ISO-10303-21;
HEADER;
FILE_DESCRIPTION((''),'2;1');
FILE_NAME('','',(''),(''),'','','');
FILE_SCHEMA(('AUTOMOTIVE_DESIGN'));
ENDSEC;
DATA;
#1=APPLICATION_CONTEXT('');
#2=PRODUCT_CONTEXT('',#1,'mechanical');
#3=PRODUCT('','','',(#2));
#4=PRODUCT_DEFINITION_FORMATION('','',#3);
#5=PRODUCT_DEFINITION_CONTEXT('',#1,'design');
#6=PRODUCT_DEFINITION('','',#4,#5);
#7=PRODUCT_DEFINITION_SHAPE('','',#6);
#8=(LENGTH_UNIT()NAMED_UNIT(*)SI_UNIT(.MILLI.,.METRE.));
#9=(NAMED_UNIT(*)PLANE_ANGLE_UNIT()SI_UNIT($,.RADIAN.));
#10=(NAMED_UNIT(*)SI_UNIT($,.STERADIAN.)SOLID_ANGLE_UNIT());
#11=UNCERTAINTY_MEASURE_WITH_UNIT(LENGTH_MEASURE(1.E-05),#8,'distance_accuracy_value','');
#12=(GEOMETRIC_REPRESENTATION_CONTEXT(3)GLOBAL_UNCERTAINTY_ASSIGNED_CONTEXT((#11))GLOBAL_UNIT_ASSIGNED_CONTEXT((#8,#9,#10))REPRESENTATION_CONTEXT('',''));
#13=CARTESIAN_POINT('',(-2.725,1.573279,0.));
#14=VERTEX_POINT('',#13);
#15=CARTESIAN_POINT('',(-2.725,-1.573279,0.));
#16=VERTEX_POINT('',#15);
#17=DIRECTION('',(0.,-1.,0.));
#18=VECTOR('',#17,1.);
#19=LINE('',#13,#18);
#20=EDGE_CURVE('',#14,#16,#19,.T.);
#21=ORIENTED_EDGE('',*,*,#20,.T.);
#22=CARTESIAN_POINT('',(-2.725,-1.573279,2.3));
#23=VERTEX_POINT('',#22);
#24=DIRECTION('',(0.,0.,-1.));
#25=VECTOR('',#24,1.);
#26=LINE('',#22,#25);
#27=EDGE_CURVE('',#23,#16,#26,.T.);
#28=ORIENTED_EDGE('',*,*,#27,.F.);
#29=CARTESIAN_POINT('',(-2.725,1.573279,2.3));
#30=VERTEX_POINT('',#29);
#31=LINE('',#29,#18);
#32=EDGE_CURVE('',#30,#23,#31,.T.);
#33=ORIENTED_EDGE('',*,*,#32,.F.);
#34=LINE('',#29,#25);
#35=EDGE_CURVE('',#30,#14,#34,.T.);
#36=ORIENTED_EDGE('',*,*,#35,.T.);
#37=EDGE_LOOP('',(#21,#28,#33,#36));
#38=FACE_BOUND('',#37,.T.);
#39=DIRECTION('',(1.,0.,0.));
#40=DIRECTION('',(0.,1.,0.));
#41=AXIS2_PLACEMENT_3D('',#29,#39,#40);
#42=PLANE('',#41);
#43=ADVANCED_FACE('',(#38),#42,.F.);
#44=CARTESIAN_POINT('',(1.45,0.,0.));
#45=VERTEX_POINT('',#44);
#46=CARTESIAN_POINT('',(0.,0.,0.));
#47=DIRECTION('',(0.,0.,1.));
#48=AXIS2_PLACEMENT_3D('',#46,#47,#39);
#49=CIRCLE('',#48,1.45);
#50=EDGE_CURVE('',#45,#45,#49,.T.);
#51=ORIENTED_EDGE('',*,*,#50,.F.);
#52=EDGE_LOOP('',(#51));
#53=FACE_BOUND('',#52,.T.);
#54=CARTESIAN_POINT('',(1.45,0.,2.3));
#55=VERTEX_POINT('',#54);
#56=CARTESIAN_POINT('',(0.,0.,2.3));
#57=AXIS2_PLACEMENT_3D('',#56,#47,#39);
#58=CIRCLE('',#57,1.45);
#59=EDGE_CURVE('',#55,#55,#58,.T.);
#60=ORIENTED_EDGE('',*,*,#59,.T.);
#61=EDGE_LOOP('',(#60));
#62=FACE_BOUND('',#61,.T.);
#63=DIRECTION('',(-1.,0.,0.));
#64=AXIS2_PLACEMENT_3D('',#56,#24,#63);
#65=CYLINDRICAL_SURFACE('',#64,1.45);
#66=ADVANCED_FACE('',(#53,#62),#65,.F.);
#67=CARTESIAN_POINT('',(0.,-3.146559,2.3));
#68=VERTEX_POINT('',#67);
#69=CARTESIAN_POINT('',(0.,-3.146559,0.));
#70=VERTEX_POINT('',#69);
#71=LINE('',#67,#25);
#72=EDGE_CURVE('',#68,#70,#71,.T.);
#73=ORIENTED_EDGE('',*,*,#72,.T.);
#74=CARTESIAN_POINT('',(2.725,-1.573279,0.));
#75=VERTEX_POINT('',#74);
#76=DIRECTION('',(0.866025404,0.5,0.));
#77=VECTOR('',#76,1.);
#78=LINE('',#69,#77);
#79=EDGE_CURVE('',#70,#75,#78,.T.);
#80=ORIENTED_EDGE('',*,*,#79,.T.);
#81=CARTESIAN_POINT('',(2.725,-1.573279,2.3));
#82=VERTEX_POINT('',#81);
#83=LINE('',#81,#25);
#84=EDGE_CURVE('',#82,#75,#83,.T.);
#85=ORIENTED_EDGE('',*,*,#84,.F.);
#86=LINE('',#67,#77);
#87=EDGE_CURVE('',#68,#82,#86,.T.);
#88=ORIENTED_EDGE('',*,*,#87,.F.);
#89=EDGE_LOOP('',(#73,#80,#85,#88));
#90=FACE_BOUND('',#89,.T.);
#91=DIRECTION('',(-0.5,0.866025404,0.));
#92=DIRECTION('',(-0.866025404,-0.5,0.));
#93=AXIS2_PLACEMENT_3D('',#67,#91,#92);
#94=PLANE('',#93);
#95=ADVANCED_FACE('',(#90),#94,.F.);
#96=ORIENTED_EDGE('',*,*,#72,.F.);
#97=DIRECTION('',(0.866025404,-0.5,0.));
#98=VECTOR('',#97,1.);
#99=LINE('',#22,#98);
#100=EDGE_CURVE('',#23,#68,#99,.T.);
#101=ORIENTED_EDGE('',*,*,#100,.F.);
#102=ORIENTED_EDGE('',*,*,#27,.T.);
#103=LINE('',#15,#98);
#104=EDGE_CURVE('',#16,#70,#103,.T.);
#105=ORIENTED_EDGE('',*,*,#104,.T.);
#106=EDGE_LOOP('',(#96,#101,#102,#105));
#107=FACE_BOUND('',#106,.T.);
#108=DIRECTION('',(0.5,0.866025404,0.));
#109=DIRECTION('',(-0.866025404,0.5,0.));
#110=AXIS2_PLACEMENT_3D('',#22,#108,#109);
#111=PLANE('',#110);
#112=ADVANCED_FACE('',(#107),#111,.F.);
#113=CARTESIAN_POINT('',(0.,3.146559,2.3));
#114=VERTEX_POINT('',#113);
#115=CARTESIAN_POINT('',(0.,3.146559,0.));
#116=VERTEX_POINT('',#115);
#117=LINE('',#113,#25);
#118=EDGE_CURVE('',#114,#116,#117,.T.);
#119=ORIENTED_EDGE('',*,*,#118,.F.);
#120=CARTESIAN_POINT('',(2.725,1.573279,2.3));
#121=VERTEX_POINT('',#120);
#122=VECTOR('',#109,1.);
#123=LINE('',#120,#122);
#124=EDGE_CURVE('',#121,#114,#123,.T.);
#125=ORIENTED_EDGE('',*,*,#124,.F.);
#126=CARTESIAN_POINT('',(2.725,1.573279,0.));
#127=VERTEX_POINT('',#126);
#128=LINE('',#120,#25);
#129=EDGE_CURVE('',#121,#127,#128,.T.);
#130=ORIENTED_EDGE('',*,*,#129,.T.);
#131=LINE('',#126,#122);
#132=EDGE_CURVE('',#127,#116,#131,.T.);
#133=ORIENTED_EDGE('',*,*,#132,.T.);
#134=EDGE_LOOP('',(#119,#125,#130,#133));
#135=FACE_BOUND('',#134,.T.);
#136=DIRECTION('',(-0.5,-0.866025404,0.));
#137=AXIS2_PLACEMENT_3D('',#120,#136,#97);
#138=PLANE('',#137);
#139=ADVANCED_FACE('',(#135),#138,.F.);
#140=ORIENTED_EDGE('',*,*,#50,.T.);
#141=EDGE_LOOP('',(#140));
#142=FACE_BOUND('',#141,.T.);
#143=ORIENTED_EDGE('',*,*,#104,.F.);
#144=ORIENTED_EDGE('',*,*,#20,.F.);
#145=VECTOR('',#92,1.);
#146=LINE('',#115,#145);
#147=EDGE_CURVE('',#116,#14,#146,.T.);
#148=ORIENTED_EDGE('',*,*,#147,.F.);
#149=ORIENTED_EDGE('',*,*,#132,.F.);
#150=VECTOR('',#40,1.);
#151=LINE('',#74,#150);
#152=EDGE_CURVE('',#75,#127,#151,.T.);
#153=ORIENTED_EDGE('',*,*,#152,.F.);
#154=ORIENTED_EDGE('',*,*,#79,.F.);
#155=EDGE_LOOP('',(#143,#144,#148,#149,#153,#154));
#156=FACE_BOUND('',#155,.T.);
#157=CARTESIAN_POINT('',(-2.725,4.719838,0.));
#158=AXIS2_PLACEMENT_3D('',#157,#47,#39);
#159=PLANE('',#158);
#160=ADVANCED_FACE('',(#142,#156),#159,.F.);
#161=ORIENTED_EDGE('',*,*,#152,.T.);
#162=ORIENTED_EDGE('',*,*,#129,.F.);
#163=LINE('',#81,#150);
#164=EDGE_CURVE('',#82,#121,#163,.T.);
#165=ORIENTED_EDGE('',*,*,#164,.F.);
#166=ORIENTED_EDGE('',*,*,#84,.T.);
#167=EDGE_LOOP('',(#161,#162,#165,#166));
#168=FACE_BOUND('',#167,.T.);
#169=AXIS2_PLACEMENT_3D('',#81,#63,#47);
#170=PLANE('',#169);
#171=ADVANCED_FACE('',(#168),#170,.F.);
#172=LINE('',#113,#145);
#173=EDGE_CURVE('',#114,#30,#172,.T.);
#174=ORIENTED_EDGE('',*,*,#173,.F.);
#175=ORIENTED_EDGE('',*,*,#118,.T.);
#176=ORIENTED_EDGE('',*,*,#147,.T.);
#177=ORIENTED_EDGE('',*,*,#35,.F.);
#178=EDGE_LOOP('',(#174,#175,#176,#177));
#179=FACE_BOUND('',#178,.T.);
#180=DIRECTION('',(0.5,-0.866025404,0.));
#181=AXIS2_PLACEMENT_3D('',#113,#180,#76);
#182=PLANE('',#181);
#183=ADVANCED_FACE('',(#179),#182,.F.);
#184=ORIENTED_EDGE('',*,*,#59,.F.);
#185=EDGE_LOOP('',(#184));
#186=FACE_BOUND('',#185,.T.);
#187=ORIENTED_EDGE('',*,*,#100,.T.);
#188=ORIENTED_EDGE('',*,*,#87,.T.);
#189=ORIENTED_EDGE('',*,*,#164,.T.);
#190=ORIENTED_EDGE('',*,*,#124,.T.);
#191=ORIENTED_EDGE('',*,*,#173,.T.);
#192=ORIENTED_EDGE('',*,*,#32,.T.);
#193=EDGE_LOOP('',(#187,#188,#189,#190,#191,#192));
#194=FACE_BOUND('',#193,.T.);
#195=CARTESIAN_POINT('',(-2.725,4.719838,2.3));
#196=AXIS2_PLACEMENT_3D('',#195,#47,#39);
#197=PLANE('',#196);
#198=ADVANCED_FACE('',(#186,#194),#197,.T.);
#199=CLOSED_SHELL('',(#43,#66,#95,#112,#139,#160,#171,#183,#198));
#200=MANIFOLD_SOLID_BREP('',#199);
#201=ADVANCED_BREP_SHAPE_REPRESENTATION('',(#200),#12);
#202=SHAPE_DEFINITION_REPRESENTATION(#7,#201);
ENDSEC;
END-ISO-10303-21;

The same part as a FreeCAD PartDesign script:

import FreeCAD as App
import Part
import Sketcher
Q = App.Units.Quantity


def add_polygon(sketch, points):
    """Adds a closed chain of lines whose ends are joined by coincident constraints."""
    first, n = sketch.GeometryCount, len(points)
    for a, b in zip(points, points[1:] + points[:1]):
        sketch.addGeometry(Part.LineSegment(App.Vector(*a, 0), App.Vector(*b, 0)), False)
    for i in range(n):
        sketch.addConstraint(Sketcher.Constraint("Coincident", first + i, 2, first + (i + 1) % n, 1))

doc = App.newDocument("Part")
params = doc.addObject("Spreadsheet::Sheet", "Params")
for row, (alias, value) in enumerate([
    ("sketch1_diameter", "2.9 mm"),
    ("pad1_length", "2.3 mm"),
], start=1):
    params.set(f"A{row}", alias)
    params.set(f"B{row}", "=" + value)
    params.setAlias(f"B{row}", alias)

body = doc.addObject("PartDesign::Body", "Body")

# Sketch on XY plane
sketch1 = body.newObject("Sketcher::SketchObject", "Sketch")
sketch1.AttachmentSupport = (doc.getObject("XY_Plane"), [""])
sketch1.MapMode = "FlatFace"
add_polygon(sketch1, [(0, 3.1), (-2.7, 1.6), (-2.7, -1.6), (0, -3.1), (2.7, -1.6), (2.7, 1.6)])  # lines 0-5
sketch1.addGeometry(Part.Circle(App.Vector(0, 0, 0), App.Vector(0, 0, 1), 1.4), False)  # 6
sketch1.addConstraint([
    Sketcher.Constraint("Vertical", 1),
    Sketcher.Constraint("Vertical", 4),
    Sketcher.Constraint("Coincident", 6, 3, -1, 1),
    Sketcher.Constraint("Symmetric", 0, 2, 3, 2, -1, 1),
    Sketcher.Constraint("Symmetric", 2, 2, 5, 2, -1, 1),
    Sketcher.Constraint("PointOnObject", 2, 2, -2),
    Sketcher.Constraint("Parallel", 2, 5),
    Sketcher.Constraint("Horizontal", 1, 2, 3, 2),
    Sketcher.Constraint("Diameter", 6, Q("2.9 mm")),
    Sketcher.Constraint("Angle", 0, Q("-150 deg")),
    Sketcher.Constraint("DistanceX", 1, 2, 3, 2, Q("5.45 mm")),
    Sketcher.Constraint("DistanceY", 1, 2, 1, 1, Q("3.146559 mm")),
])
sketch1.setExpression("Constraints[14]", "Params.sketch1_diameter")
pad1 = body.newObject("PartDesign::Pad", "Pad")
pad1.Profile = sketch1
pad1.setExpression("Length", "Params.pad1_length")

doc.recompute()
